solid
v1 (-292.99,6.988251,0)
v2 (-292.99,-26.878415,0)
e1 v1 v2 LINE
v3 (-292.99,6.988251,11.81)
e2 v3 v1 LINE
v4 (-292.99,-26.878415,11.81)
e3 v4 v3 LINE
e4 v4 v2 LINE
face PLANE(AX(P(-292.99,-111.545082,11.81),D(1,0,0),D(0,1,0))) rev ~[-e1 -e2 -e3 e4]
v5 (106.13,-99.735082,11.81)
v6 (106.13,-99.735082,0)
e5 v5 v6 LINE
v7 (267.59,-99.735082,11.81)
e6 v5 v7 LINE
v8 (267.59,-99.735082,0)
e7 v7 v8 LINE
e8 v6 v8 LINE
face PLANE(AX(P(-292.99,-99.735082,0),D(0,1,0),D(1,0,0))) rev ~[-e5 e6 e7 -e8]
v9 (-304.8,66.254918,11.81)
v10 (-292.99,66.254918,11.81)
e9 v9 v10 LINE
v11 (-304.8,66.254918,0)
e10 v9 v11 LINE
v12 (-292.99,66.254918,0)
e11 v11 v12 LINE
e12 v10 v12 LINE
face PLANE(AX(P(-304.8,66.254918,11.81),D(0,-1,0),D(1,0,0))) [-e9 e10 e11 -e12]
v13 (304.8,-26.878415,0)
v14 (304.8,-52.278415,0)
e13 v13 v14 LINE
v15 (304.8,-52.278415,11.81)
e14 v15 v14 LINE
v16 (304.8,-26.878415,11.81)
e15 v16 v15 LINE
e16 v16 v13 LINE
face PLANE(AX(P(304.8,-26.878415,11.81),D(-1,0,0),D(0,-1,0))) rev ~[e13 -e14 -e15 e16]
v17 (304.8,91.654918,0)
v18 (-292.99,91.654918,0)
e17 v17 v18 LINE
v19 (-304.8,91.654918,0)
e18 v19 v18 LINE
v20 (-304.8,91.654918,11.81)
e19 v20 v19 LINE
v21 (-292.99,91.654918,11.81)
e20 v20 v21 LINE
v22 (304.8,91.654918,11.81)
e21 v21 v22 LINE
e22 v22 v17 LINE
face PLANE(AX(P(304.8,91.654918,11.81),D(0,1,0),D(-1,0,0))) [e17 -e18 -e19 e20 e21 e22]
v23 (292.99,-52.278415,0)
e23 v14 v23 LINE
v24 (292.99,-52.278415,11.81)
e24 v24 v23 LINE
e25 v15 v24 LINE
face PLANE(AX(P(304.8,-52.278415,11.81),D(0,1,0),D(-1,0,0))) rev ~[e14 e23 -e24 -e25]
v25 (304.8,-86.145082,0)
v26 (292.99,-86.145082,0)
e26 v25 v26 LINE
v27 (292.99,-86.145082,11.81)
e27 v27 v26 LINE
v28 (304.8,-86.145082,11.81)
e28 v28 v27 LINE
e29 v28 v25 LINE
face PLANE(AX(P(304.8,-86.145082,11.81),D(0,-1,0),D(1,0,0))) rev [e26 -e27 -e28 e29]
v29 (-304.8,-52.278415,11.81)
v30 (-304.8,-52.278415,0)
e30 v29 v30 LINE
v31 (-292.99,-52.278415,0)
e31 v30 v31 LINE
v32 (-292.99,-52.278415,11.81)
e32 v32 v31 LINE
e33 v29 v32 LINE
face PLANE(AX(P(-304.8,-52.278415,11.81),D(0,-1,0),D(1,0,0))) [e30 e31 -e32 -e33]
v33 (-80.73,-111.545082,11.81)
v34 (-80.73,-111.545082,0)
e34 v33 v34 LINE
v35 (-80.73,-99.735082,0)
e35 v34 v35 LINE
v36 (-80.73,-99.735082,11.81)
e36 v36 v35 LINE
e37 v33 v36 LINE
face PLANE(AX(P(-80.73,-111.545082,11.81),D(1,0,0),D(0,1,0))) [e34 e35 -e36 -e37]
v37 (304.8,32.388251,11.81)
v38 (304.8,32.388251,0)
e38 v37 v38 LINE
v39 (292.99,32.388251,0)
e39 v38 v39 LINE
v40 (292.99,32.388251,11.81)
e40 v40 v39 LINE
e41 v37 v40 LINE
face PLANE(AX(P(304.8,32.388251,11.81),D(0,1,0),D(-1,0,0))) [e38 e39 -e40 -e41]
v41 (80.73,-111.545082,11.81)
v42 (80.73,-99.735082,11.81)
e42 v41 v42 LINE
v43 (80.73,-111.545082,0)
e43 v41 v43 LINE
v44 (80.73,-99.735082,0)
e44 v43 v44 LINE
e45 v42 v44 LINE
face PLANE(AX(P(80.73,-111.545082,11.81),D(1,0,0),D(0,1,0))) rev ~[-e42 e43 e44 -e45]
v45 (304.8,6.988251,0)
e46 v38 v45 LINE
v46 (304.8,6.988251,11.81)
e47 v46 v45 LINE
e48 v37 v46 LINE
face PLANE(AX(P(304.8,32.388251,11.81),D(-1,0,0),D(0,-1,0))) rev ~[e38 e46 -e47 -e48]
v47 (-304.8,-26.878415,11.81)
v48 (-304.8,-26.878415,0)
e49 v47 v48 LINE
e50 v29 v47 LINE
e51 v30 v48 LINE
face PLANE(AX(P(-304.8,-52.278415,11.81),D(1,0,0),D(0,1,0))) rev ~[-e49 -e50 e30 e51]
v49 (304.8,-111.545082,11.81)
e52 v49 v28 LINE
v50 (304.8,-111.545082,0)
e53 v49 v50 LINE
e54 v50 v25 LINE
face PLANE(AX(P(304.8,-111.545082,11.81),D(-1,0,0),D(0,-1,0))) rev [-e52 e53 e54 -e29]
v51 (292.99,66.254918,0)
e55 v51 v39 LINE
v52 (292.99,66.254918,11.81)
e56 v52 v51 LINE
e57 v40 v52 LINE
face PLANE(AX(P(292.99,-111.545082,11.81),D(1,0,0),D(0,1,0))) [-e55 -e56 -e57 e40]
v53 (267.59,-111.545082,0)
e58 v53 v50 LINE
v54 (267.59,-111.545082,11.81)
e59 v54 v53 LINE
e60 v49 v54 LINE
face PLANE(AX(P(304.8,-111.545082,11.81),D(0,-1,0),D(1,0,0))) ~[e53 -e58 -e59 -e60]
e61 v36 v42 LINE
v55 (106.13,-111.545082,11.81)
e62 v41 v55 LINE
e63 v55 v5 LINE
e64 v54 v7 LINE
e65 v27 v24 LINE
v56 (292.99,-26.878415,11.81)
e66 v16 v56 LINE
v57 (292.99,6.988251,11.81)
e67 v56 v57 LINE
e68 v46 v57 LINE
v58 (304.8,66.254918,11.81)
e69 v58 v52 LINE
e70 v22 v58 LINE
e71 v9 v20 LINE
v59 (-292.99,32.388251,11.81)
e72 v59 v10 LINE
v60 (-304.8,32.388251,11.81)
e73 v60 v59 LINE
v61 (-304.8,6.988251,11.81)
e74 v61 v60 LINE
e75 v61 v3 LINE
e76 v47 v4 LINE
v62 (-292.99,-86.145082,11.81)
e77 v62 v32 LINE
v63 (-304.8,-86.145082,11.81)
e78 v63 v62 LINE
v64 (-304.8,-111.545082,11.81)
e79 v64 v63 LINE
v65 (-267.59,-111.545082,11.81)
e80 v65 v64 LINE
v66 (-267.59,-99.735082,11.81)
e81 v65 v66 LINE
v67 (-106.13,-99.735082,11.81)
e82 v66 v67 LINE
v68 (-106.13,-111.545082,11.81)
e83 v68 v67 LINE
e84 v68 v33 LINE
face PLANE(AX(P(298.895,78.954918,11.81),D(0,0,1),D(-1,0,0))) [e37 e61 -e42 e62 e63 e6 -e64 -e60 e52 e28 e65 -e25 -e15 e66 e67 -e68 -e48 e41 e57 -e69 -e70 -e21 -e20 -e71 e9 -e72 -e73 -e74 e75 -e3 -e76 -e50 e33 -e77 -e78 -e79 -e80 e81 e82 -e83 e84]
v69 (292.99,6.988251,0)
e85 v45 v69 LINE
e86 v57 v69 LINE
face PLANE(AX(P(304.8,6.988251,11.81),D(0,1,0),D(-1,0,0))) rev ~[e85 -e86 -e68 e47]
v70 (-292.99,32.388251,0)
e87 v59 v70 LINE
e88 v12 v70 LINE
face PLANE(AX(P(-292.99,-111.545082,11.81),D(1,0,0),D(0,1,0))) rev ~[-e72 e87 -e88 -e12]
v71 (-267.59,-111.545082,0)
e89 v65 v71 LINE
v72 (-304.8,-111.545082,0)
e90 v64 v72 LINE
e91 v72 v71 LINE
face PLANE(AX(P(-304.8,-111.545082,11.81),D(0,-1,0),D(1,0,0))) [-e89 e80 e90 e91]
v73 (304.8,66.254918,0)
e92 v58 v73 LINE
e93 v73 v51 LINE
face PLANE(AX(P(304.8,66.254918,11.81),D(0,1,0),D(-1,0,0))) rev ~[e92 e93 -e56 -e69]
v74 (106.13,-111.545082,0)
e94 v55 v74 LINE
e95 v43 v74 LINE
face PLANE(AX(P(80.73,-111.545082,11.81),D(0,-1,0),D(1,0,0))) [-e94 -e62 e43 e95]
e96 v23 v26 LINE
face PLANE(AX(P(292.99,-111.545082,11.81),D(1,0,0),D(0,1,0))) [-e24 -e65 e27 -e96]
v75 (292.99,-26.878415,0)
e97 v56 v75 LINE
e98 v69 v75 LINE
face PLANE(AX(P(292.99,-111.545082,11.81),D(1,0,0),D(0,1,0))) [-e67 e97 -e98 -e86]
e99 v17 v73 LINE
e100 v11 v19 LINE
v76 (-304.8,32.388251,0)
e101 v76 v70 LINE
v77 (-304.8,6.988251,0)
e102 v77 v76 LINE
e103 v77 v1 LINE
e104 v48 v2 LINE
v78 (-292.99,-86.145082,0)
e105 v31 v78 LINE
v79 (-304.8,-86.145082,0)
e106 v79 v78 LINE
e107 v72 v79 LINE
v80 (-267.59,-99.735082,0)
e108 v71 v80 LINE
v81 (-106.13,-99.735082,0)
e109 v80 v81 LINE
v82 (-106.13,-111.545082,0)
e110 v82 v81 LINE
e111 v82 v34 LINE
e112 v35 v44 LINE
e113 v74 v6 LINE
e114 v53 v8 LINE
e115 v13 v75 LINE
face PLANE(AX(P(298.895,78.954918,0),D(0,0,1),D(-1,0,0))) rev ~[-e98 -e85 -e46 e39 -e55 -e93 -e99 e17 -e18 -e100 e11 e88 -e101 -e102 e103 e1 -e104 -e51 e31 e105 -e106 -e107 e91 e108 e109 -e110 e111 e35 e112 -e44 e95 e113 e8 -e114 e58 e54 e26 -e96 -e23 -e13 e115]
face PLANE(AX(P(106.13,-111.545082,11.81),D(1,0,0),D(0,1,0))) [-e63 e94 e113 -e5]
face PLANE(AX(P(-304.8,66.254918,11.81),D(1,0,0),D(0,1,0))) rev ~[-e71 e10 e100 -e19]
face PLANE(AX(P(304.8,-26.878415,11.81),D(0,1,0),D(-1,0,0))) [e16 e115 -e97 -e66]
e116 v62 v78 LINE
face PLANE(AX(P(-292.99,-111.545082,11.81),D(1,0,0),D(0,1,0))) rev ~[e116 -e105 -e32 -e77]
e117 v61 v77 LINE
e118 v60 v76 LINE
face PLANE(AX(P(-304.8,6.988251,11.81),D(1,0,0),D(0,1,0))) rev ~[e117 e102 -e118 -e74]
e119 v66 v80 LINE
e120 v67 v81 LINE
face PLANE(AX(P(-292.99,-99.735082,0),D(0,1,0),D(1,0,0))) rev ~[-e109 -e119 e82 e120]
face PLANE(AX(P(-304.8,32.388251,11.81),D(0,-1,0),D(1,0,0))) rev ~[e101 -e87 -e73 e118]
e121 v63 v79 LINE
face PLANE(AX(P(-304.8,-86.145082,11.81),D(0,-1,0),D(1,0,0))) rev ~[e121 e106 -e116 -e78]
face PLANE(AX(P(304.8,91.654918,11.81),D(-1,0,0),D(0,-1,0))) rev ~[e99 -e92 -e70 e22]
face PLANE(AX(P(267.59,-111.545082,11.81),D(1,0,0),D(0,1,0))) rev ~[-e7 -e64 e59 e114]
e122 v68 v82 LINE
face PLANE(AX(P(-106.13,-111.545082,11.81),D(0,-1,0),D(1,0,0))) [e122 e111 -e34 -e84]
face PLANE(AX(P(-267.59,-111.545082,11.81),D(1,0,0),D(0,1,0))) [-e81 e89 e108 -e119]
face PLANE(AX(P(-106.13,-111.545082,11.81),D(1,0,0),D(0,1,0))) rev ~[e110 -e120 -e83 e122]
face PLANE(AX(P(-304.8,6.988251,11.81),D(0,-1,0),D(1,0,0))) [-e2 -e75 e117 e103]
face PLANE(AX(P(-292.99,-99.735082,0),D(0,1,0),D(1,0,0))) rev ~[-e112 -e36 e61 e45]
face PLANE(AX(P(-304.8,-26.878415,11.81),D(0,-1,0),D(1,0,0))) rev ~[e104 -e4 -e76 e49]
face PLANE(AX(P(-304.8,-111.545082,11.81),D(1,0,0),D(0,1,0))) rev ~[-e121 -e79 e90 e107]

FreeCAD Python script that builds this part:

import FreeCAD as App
import Part
import Sketcher
Q = App.Units.Quantity


def add_polygon(sketch, points):
    """Adds a closed chain of lines whose ends are joined by coincident constraints."""
    first, n = sketch.GeometryCount, len(points)
    for a, b in zip(points, points[1:] + points[:1]):
        sketch.addGeometry(Part.LineSegment(App.Vector(*a, 0), App.Vector(*b, 0)), False)
    for i in range(n):
        sketch.addConstraint(Sketcher.Constraint("Coincident", first + i, 2, first + (i + 1) % n, 1))

doc = App.newDocument("Part")
params = doc.addObject("Spreadsheet::Sheet", "Params")
for row, (alias, value) in enumerate([
    ("pad1_length", "11.81 mm"),
    ("sketch2_width", "1 in"),
    ("pad2_length", "11.81 mm"),
    ("linearpattern_pitch", "186.86 mm"),
    ("sketch3_height", "1 in"),
    ("pad3_length", "11.81 mm"),
    ("linearpattern2_pitch", "59.266667 mm"),
    ("sketch4_height", "1 in"),
    ("pad4_length", "11.81 mm"),
    ("sketch5_height", "1 in"),
    ("pad5_length", "11.81 mm"),
    ("sketch6_height", "1 in"),
    ("pad6_length", "11.81 mm"),
], start=1):
    params.set(f"A{row}", alias)
    params.set(f"B{row}", "=" + value)
    params.setAlias(f"B{row}", alias)

body = doc.addObject("PartDesign::Body", "Body")

# Sketch on XY plane
sketch1 = body.newObject("Sketcher::SketchObject", "Sketch")
sketch1.AttachmentSupport = (doc.getObject("XY_Plane"), [""])
sketch1.MapMode = "FlatFace"
add_polygon(sketch1, [(-293, 92), (-293, -100), (293, -100), (293, 92)])  # lines 0-3
sketch1.addConstraint([
    Sketcher.Constraint("Vertical", 0),
    Sketcher.Constraint("Horizontal", 1),
    Sketcher.Constraint("Vertical", 2),
    Sketcher.Constraint("Horizontal", 3),
    Sketcher.Constraint("DistanceX", 1, 1, 1, 2, Q("585.98 mm")),
    Sketcher.Constraint("DistanceY", 0, 2, 0, 1, Q("191.39 mm")),
    Sketcher.Constraint("DistanceX", 0, 2, -1, 1, Q("292.99 mm")),
    Sketcher.Constraint("DistanceY", 0, 2, -1, 1, Q("99.735082 mm")),
])
pad1 = body.newObject("PartDesign::Pad", "Pad")
pad1.Profile = sketch1
pad1.setExpression("Length", "Params.pad1_length")

# Sketch on XY plane
sketch2 = body.newObject("Sketcher::SketchObject", "Sketch001")
sketch2.AttachmentSupport = (doc.getObject("XY_Plane"), [""])
sketch2.MapMode = "FlatFace"
sketch2.AttachmentOffset = App.Placement(App.Vector(0, 0, 11.81), App.Rotation())
add_polygon(sketch2, [(-293, -100), (-293, -112), (-268, -112), (-268, -100)])  # lines 0-3
sketch2.addConstraint([
    Sketcher.Constraint("Vertical", 0),
    Sketcher.Constraint("Horizontal", 1),
    Sketcher.Constraint("Vertical", 2),
    Sketcher.Constraint("Horizontal", 3),
    Sketcher.Constraint("DistanceX", 1, 1, 1, 2, Q("1 in")),
    Sketcher.Constraint("DistanceY", 0, 2, 0, 1, Q("11.81 mm")),
    Sketcher.Constraint("DistanceX", 0, 2, -1, 1, Q("292.99 mm")),
    Sketcher.Constraint("DistanceY", 0, 2, -1, 1, Q("111.545082 mm")),
])
sketch2.setExpression("Constraints[8]", "Params.sketch2_width")
pad2 = body.newObject("PartDesign::Pad", "Pad001")
pad2.Profile = sketch2
pad2.setExpression("Length", "Params.pad2_length")
pad2.Reversed = True
doc.recompute()

linearpattern = body.newObject("PartDesign::LinearPattern", "LinearPattern")
linearpattern.Originals = [pad2]
linearpattern.Direction = (doc.getObject("X_Axis"), [""])
linearpattern.Mode = "offset"
linearpattern.setExpression("Offset", "Params.linearpattern_pitch")
linearpattern.Occurrences = 4
body.Tip = linearpattern

# Sketch on XY plane
sketch3 = body.newObject("Sketcher::SketchObject", "Sketch002")
sketch3.AttachmentSupport = (doc.getObject("XY_Plane"), [""])
sketch3.MapMode = "FlatFace"
sketch3.AttachmentOffset = App.Placement(App.Vector(0, 0, 11.81), App.Rotation())
add_polygon(sketch3, [(-305, -86), (-305, -112), (-293, -112), (-293, -86)])  # lines 0-3
sketch3.addConstraint([
    Sketcher.Constraint("Vertical", 0),
    Sketcher.Constraint("Horizontal", 1),
    Sketcher.Constraint("Vertical", 2),
    Sketcher.Constraint("Horizontal", 3),
    Sketcher.Constraint("DistanceY", 0, 2, 0, 1, Q("1 in")),
    Sketcher.Constraint("DistanceX", 0, 2, -1, 1, Q("12 in")),
    Sketcher.Constraint("DistanceX", 1, 1, 1, 2, Q("11.81 mm")),
    Sketcher.Constraint("DistanceY", 0, 2, -1, 1, Q("111.545082 mm")),
])
sketch3.setExpression("Constraints[8]", "Params.sketch3_height")
pad3 = body.newObject("PartDesign::Pad", "Pad002")
pad3.Profile = sketch3
pad3.setExpression("Length", "Params.pad3_length")
pad3.Reversed = True
doc.recompute()

linearpattern2 = body.newObject("PartDesign::LinearPattern", "LinearPattern001")
linearpattern2.Originals = [pad3]
linearpattern2.Direction = (doc.getObject("Y_Axis"), [""])
linearpattern2.Mode = "offset"
linearpattern2.setExpression("Offset", "Params.linearpattern2_pitch")
linearpattern2.Occurrences = 4
body.Tip = linearpattern2
doc.recompute()

mirrored = body.newObject("PartDesign::Mirrored", "Mirrored")
mirrored.Originals = [pad3]
mirrored.MirrorPlane = (doc.getObject("YZ_Plane"), [""])
body.Tip = mirrored

# Sketch on XY plane
sketch4 = body.newObject("Sketcher::SketchObject", "Sketch003")
sketch4.AttachmentSupport = (doc.getObject("XY_Plane"), [""])
sketch4.MapMode = "FlatFace"
sketch4.AttachmentOffset = App.Placement(App.Vector(0, 0, 11.81), App.Rotation())
add_polygon(sketch4, [(305, -52), (305, -27), (293, -27), (293, -52)])  # lines 0-3
sketch4.addConstraint([
    Sketcher.Constraint("Vertical", 0),
    Sketcher.Constraint("Horizontal", 1),
    Sketcher.Constraint("Vertical", 2),
    Sketcher.Constraint("Horizontal", 3),
    Sketcher.Constraint("DistanceY", 0, 1, 0, 2, Q("1 in")),
    Sketcher.Constraint("DistanceX", -1, 1, 0, 2, Q("12 in")),
    Sketcher.Constraint("DistanceX", 1, 2, 1, 1, Q("11.81 mm")),
    Sketcher.Constraint("DistanceY", 0, 2, -1, 1, Q("26.878415 mm")),
])
sketch4.setExpression("Constraints[8]", "Params.sketch4_height")
pad4 = body.newObject("PartDesign::Pad", "Pad003")
pad4.Profile = sketch4
pad4.setExpression("Length", "Params.pad4_length")
pad4.Reversed = True

# Sketch on XY plane
sketch5 = body.newObject("Sketcher::SketchObject", "Sketch004")
sketch5.AttachmentSupport = (doc.getObject("XY_Plane"), [""])
sketch5.MapMode = "FlatFace"
sketch5.AttachmentOffset = App.Placement(App.Vector(0, 0, 11.81), App.Rotation())
add_polygon(sketch5, [(305, 7), (305, 32), (293, 32), (293, 7)])  # lines 0-3
sketch5.addConstraint([
    Sketcher.Constraint("Vertical", 0),
    Sketcher.Constraint("Horizontal", 1),
    Sketcher.Constraint("Vertical", 2),
    Sketcher.Constraint("Horizontal", 3),
    Sketcher.Constraint("DistanceY", 0, 1, 0, 2, Q("1 in")),
    Sketcher.Constraint("DistanceX", -1, 1, 0, 2, Q("12 in")),
    Sketcher.Constraint("DistanceX", 1, 2, 1, 1, Q("11.81 mm")),
    Sketcher.Constraint("DistanceY", -1, 1, 0, 2, Q("32.388251 mm")),
])
sketch5.setExpression("Constraints[8]", "Params.sketch5_height")
pad5 = body.newObject("PartDesign::Pad", "Pad004")
pad5.Profile = sketch5
pad5.setExpression("Length", "Params.pad5_length")
pad5.Reversed = True

# Sketch on XY plane
sketch6 = body.newObject("Sketcher::SketchObject", "Sketch005")
sketch6.AttachmentSupport = (doc.getObject("XY_Plane"), [""])
sketch6.MapMode = "FlatFace"
sketch6.AttachmentOffset = App.Placement(App.Vector(0, 0, 11.81), App.Rotation())
add_polygon(sketch6, [(305, 66), (305, 92), (293, 92), (293, 66)])  # lines 0-3
sketch6.addConstraint([
    Sketcher.Constraint("Vertical", 0),
    Sketcher.Constraint("Horizontal", 1),
    Sketcher.Constraint("Vertical", 2),
    Sketcher.Constraint("Horizontal", 3),
    Sketcher.Constraint("DistanceY", 0, 1, 0, 2, Q("1 in")),
    Sketcher.Constraint("DistanceX", -1, 1, 0, 2, Q("12 in")),
    Sketcher.Constraint("DistanceX", 1, 2, 1, 1, Q("11.81 mm")),
    Sketcher.Constraint("DistanceY", -1, 1, 0, 2, Q("91.654918 mm")),
])
sketch6.setExpression("Constraints[8]", "Params.sketch6_height")
pad6 = body.newObject("PartDesign::Pad", "Pad005")
pad6.Profile = sketch6
pad6.setExpression("Length", "Params.pad6_length")
pad6.Reversed = True

doc.recompute()
